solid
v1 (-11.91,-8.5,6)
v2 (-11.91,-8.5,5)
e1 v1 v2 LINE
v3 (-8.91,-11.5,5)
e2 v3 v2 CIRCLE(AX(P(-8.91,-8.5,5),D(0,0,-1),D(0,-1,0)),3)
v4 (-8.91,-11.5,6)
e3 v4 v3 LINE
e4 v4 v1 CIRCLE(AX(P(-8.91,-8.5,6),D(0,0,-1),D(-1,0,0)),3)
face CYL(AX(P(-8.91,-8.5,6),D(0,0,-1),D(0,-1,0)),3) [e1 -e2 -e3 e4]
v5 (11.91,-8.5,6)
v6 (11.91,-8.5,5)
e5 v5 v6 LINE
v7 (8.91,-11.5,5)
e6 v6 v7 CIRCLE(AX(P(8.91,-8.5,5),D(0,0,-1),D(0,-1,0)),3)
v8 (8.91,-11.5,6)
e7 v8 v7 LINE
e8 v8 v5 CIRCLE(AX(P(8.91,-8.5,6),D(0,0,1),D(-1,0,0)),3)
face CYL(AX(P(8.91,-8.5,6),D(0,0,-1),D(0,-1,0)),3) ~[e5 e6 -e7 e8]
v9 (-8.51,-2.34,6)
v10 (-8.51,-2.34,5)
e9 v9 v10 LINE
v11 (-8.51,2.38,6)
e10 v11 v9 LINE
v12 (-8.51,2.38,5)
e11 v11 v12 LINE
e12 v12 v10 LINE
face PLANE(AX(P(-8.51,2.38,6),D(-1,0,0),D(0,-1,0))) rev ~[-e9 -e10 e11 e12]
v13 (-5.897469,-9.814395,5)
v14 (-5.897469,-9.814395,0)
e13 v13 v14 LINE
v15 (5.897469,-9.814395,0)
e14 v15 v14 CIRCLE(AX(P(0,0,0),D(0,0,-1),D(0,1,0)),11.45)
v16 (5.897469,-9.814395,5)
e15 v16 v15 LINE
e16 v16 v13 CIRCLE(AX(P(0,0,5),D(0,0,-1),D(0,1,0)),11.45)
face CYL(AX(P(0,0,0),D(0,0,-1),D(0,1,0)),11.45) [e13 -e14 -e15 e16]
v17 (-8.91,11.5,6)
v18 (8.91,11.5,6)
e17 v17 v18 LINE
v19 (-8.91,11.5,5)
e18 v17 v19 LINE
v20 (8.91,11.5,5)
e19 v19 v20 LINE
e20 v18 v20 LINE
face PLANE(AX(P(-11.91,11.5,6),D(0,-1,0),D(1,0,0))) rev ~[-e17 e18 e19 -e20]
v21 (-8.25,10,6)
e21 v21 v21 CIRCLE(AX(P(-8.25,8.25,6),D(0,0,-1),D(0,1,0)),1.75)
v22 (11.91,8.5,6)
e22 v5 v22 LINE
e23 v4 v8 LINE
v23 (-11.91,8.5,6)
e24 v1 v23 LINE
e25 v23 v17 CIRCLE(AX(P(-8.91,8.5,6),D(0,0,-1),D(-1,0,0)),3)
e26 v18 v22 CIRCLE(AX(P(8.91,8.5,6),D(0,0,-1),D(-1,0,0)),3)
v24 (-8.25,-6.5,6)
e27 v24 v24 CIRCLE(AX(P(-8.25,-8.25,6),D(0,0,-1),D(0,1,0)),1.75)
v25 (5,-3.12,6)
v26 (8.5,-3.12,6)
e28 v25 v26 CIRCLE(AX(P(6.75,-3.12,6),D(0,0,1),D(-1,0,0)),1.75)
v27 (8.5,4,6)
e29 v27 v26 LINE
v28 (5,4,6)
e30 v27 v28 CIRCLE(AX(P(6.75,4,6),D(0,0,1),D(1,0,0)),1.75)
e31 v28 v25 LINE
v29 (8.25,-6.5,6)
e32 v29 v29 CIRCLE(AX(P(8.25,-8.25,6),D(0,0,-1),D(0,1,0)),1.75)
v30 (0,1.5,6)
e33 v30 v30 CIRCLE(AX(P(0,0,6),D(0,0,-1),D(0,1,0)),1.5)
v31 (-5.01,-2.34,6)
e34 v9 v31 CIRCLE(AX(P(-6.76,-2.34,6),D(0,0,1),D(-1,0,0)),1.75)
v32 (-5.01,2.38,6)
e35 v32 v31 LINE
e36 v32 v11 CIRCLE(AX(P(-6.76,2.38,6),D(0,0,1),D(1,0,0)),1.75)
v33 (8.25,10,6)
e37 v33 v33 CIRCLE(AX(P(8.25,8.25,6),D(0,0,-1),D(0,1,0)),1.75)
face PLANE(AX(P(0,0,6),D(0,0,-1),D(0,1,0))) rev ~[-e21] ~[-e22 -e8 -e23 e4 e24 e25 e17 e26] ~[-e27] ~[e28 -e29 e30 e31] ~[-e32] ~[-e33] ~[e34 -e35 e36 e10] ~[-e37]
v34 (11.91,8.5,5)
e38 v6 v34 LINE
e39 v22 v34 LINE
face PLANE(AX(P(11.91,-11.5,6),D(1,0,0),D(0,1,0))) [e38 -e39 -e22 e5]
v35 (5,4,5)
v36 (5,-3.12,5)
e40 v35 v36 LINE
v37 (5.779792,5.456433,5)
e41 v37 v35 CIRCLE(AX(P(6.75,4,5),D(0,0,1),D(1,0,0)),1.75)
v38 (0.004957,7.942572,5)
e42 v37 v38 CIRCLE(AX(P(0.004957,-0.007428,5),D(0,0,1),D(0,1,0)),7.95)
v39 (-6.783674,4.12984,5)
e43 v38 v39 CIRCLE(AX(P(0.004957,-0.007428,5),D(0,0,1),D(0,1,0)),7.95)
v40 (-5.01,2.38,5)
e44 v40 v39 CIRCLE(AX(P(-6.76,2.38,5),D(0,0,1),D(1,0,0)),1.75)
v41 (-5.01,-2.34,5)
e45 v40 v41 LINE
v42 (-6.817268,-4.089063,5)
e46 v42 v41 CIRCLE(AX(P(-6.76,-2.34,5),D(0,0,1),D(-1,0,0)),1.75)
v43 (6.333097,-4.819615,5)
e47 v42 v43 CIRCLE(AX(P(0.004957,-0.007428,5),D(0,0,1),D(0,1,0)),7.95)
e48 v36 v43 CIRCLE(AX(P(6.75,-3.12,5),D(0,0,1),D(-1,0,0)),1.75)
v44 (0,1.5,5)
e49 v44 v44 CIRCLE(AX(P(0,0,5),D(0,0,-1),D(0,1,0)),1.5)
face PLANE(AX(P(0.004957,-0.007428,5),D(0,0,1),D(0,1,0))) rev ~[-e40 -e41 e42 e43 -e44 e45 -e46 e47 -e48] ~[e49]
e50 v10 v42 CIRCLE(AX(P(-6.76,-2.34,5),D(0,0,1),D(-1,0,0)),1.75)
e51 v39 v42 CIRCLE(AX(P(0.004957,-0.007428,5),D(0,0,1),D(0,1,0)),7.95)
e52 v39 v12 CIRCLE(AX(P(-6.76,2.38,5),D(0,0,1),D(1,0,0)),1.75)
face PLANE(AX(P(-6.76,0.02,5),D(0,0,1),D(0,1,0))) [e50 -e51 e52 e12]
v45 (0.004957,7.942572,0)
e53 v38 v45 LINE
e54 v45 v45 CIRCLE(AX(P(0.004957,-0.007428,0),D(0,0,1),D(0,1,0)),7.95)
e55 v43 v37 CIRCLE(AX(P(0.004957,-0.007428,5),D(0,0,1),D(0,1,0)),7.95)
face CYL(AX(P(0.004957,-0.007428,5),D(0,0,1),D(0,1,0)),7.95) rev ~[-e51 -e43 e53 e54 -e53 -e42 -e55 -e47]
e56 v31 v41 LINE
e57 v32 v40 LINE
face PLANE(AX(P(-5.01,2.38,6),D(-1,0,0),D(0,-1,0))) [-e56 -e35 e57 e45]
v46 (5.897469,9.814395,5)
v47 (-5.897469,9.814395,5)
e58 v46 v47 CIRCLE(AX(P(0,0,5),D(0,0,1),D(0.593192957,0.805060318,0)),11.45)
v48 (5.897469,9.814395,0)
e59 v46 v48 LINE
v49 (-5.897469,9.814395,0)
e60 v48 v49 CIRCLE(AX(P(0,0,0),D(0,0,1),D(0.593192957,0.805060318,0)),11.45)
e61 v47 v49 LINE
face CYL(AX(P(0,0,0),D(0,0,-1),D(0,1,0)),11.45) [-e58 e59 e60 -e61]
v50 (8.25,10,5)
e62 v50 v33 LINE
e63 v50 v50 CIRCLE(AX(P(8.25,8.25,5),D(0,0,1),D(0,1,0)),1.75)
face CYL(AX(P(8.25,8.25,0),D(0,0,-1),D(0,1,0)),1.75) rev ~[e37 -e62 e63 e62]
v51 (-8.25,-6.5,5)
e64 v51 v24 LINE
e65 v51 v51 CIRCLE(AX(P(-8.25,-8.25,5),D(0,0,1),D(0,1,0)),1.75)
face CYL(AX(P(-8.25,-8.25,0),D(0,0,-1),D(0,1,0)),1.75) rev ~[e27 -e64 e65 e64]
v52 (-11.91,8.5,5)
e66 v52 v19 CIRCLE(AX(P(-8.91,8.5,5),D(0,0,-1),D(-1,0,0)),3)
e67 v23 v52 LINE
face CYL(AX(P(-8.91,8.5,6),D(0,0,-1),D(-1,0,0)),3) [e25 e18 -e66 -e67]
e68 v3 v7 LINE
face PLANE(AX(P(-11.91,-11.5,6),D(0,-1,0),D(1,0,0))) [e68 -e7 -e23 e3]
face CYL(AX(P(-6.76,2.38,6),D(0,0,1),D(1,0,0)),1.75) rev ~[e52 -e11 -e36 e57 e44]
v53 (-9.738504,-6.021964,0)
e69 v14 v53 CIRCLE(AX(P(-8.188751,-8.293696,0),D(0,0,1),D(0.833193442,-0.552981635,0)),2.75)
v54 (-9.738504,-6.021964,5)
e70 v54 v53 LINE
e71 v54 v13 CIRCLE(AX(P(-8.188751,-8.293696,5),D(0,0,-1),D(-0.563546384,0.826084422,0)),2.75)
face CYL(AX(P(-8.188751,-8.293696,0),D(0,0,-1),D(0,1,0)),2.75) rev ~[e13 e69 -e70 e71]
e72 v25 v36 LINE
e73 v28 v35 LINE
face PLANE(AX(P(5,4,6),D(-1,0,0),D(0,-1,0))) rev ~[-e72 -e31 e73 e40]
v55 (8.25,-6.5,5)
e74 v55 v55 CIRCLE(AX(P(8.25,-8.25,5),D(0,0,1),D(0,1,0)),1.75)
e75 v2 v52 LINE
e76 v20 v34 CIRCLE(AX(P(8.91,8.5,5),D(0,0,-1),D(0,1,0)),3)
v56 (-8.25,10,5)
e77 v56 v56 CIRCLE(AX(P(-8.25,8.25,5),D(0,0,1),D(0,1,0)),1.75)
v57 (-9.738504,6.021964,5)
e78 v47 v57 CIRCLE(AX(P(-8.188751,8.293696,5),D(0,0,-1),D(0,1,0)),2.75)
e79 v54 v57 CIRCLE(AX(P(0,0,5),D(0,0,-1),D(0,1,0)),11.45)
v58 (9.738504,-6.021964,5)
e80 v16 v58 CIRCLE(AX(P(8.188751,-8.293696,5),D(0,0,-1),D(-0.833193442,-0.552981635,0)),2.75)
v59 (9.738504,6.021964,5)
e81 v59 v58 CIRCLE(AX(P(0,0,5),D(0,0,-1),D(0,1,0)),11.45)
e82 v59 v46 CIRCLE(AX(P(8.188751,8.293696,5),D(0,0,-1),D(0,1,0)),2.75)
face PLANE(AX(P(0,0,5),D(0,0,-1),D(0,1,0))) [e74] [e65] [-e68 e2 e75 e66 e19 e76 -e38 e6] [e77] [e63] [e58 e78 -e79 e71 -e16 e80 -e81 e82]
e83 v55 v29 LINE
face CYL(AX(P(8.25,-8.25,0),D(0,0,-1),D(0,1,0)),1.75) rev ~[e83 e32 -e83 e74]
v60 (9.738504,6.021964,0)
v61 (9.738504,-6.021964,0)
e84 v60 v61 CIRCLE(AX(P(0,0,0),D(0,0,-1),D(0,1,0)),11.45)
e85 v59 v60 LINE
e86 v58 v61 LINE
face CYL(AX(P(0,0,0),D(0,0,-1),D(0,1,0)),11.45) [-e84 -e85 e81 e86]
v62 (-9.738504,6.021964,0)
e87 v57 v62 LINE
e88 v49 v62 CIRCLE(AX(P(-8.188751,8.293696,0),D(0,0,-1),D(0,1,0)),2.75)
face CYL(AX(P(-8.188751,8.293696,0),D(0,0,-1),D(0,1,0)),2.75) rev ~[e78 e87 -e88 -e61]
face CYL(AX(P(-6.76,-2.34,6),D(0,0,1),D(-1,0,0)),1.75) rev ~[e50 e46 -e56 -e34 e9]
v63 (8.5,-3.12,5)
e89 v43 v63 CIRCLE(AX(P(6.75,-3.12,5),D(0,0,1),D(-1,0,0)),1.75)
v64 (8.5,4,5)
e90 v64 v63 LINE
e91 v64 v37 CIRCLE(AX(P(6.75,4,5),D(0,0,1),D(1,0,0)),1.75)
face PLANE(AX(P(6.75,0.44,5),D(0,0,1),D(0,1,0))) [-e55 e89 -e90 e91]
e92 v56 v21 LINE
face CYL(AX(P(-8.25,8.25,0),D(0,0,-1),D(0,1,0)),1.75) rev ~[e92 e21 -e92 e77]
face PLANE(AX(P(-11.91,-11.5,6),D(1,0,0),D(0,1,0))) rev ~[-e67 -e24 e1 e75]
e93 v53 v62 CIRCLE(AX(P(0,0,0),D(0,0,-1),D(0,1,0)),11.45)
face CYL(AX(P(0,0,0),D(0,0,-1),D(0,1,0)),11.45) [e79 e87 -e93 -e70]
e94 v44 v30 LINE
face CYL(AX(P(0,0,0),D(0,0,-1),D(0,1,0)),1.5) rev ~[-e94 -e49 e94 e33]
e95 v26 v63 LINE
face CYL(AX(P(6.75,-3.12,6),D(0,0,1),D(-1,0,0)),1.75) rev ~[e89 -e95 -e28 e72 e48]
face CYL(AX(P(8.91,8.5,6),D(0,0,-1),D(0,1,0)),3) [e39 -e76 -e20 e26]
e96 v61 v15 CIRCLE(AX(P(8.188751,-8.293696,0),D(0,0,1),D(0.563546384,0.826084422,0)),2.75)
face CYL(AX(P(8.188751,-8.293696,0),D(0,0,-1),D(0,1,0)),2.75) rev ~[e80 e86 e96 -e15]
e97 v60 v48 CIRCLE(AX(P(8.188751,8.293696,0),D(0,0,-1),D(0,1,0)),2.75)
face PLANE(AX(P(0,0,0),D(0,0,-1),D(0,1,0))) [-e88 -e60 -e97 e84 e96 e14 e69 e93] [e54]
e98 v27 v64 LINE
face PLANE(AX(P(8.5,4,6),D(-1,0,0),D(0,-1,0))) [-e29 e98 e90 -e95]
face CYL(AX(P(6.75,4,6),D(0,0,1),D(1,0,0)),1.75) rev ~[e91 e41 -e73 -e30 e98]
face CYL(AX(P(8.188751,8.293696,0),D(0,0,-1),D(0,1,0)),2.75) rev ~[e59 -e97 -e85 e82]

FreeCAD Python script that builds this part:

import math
import FreeCAD as App
import Part
import Sketcher


def edges_at(feature, points):
    """Names of the edges that pass closest to the given points."""
    edges = feature.Shape.Edges
    near = lambda p: min(range(len(edges)), key=lambda i: edges[i].distToShape(Part.Vertex(*p))[0])
    return sorted({f"Edge{near(p) + 1}" for p in points})


def add_polygon(sketch, points):
    """Adds a closed chain of lines whose ends are joined by coincident constraints."""
    first, n = sketch.GeometryCount, len(points)
    for a, b in zip(points, points[1:] + points[:1]):
        sketch.addGeometry(Part.LineSegment(App.Vector(*a, 0), App.Vector(*b, 0)), False)
    for i in range(n):
        sketch.addConstraint(Sketcher.Constraint("Coincident", first + i, 2, first + (i + 1) % n, 1))

doc = App.newDocument("Part")
body = doc.addObject("PartDesign::Body", "Body")

# Sketch on XY plane
sketch1 = body.newObject("Sketcher::SketchObject", "Sketch")
sketch1.AttachmentSupport = (doc.getObject("XY_Plane"), [""])
sketch1.MapMode = "FlatFace"
add_polygon(sketch1, [(-12, 12), (-12, -12), (12, -12), (12, 12)])  # lines 0-3
sketch1.addConstraint(Sketcher.Constraint("Vertical", 0))
sketch1.addConstraint(Sketcher.Constraint("Horizontal", 1))
sketch1.addConstraint(Sketcher.Constraint("Vertical", 2))
sketch1.addConstraint(Sketcher.Constraint("Horizontal", 3))
sketch1.addConstraint(Sketcher.Constraint("Symmetric", 0, 2, 2, 2, -1, 1))
sketch1.addConstraint(Sketcher.Constraint("DistanceX", 1, 1, 1, 2, 23.0))
sketch1.addConstraint(Sketcher.Constraint("DistanceY", 0, 2, 0, 1, 23.82))
pad1 = body.newObject("PartDesign::Pad", "Pad")
pad1.Profile = sketch1
pad1.Length = 6
doc.recompute()

fillet = body.newObject("PartDesign::Fillet", "Fillet")
fillet.Base = (pad1, edges_at(pad1, [
    (11.5, -11.91, 3),
    (-11.5, -11.91, 3),
    (11.5, 11.91, 3),
    (-11.5, 11.91, 3),
]))
fillet.Radius = 3

# Sketch on XY plane
sketch2 = body.newObject("Sketcher::SketchObject", "Sketch001")
sketch2.AttachmentSupport = (doc.getObject("XY_Plane"), [""])
sketch2.MapMode = "FlatFace"
sketch2.addGeometry(Part.ArcOfCircle(Part.Circle(App.Vector(4, 6.8, 0), App.Vector(0, 0, 1), 1.8), math.radians(-90), math.radians(90)), False)
sketch2.addGeometry(Part.LineSegment(App.Vector(4, 5, 0), App.Vector(-3.1, 5, 0)), False)
sketch2.addGeometry(Part.ArcOfCircle(Part.Circle(App.Vector(-3.1, 6.8, 0), App.Vector(0, 0, 1), 1.8), math.radians(90), math.radians(270)), False)
sketch2.addGeometry(Part.LineSegment(App.Vector(-3.1, 8.5, 0), App.Vector(4, 8.5, 0)), False)
sketch2.addGeometry(Part.ArcOfCircle(Part.Circle(App.Vector(2.4, -6.8, 0), App.Vector(0, 0, 1), 1.8), math.radians(-90), math.radians(90)), False)
sketch2.addGeometry(Part.LineSegment(App.Vector(2.4, -8.5, 0), App.Vector(-2.3, -8.5, 0)), False)
sketch2.addGeometry(Part.ArcOfCircle(Part.Circle(App.Vector(-2.3, -6.8, 0), App.Vector(0, 0, 1), 1.8), math.radians(90), math.radians(270)), False)
sketch2.addGeometry(Part.LineSegment(App.Vector(-2.3, -5, 0), App.Vector(2.4, -5, 0)), False)
sketch2.addConstraint(Sketcher.Constraint("Tangent", 0, 1, 1, 1))
sketch2.addConstraint(Sketcher.Constraint("Tangent", 1, 2, 2, 2))
sketch2.addConstraint(Sketcher.Constraint("Tangent", 2, 1, 3, 1))
sketch2.addConstraint(Sketcher.Constraint("Tangent", 3, 2, 0, 2))
sketch2.addConstraint(Sketcher.Constraint("Tangent", 4, 1, 5, 1))
sketch2.addConstraint(Sketcher.Constraint("Tangent", 5, 2, 6, 2))
sketch2.addConstraint(Sketcher.Constraint("Tangent", 6, 1, 7, 1))
sketch2.addConstraint(Sketcher.Constraint("Tangent", 7, 2, 4, 2))
sketch2.addConstraint(Sketcher.Constraint("Horizontal", 1))
sketch2.addConstraint(Sketcher.Constraint("Horizontal", 3))
sketch2.addConstraint(Sketcher.Constraint("Horizontal", 5))
sketch2.addConstraint(Sketcher.Constraint("Horizontal", 7))
sketch2.addConstraint(Sketcher.Constraint("Equal", 2, 4))
sketch2.addConstraint(Sketcher.Constraint("Radius", 0, 1.75))
sketch2.addConstraint(Sketcher.Constraint("DistanceX", -1, 1, 0, 3, 4.0))
sketch2.addConstraint(Sketcher.Constraint("DistanceY", -1, 1, 0, 1, 5.0))
sketch2.addConstraint(Sketcher.Constraint("DistanceX", 1, 2, 1, 1, 7.12))
sketch2.addConstraint(Sketcher.Constraint("DistanceX", 5, 2, 5, 1, 4.72))
sketch2.addConstraint(Sketcher.Constraint("DistanceX", 2, 3, 4, 3, 5.5))
sketch2.addConstraint(Sketcher.Constraint("DistanceY", 4, 3, -1, 1, 6.76))
pocket1 = body.newObject("PartDesign::Pocket", "Pocket")
pocket1.Profile = sketch2
pocket1.Length = 1
pocket1.Reversed = True

# Sketch on XY plane
sketch3 = body.newObject("Sketcher::SketchObject", "Sketch002")
sketch3.AttachmentSupport = (doc.getObject("XY_Plane"), [""])
sketch3.MapMode = "FlatFace"
sketch3.AttachmentOffset = App.Placement(App.Vector(0, 0, 6), App.Rotation())
add_polygon(sketch3, [(-20, 20), (-20, -20), (20, -20), (20, 20)])  # lines 0-3
sketch3.addGeometry(Part.Circle(App.Vector(0, 0, 0), App.Vector(0, 0, 1), 11), False)  # 4
sketch3.addConstraint(Sketcher.Constraint("Vertical", 0))
sketch3.addConstraint(Sketcher.Constraint("Horizontal", 1))
sketch3.addConstraint(Sketcher.Constraint("Vertical", 2))
sketch3.addConstraint(Sketcher.Constraint("Horizontal", 3))
sketch3.addConstraint(Sketcher.Constraint("Coincident", 4, 3, -1, 1))
sketch3.addConstraint(Sketcher.Constraint("Symmetric", 0, 2, 2, 2, -1, 1))
sketch3.addConstraint(Sketcher.Constraint("Equal", 3, 0))
sketch3.addConstraint(Sketcher.Constraint("Diameter", 4, 22.9))
sketch3.addConstraint(Sketcher.Constraint("DistanceX", 1, 1, 1, 2, 40.0))
pocket2 = body.newObject("PartDesign::Pocket", "Pocket001")
pocket2.Profile = sketch3
pocket2.Length = 5

# Sketch on XY plane
sketch4 = body.newObject("Sketcher::SketchObject", "Sketch003")
sketch4.AttachmentSupport = (doc.getObject("XY_Plane"), [""])
sketch4.MapMode = "FlatFace"
sketch4.AttachmentOffset = App.Placement(App.Vector(0, 0, 1), App.Rotation())
sketch4.addGeometry(Part.Circle(App.Vector(0, 0, 0), App.Vector(0, 0, 1), 8), False)
sketch4.addConstraint(Sketcher.Constraint("Diameter", 0, 15.9))
sketch4.addConstraint(Sketcher.Constraint("DistanceX", 0, 3, -1, 1, 0.007428))
sketch4.addConstraint(Sketcher.Constraint("DistanceY", -1, 1, 0, 3, 0.004957))
pocket3 = body.newObject("PartDesign::Pocket", "Pocket002")
pocket3.Profile = sketch4
pocket3.Length = 5
pocket3.Reversed = True

# Sketch on XY plane
sketch5 = body.newObject("Sketcher::SketchObject", "Sketch004")
sketch5.AttachmentSupport = (doc.getObject("XY_Plane"), [""])
sketch5.MapMode = "FlatFace"
sketch5.AttachmentOffset = App.Placement(App.Vector(0, 0, 6), App.Rotation())
sketch5.addGeometry(Part.Circle(App.Vector(-8.2, 8.2, 0), App.Vector(0, 0, 1), 1.8), False)
sketch5.addGeometry(Part.Circle(App.Vector(8.2, 8.2, 0), App.Vector(0, 0, 1), 1.8), False)
sketch5.addGeometry(Part.Circle(App.Vector(8.2, -8.2, 0), App.Vector(0, 0, 1), 1.8), False)
sketch5.addGeometry(Part.Circle(App.Vector(-8.2, -8.2, 0), App.Vector(0, 0, 1), 1.8), False)
sketch5.addConstraint(Sketcher.Constraint("Equal", 0, 1))
sketch5.addConstraint(Sketcher.Constraint("Equal", 1, 2))
sketch5.addConstraint(Sketcher.Constraint("Equal", 2, 3))
sketch5.addConstraint(Sketcher.Constraint("Symmetric", 0, 3, 2, 3, -1, 1))
sketch5.addConstraint(Sketcher.Constraint("Symmetric", 1, 3, 3, 3, -1, 1))
sketch5.addConstraint(Sketcher.Constraint("Symmetric", 0, 3, 1, 3, -2))
sketch5.addConstraint(Sketcher.Constraint("Diameter", 0, 3.5))
sketch5.addConstraint(Sketcher.Constraint("DistanceX", 0, 3, 1, 3, 16.5))
sketch5.addConstraint(Sketcher.Constraint("DistanceY", 2, 3, 1, 3, 16.5))
pocket4 = body.newObject("PartDesign::Pocket", "Pocket003")
pocket4.Profile = sketch5
pocket4.Type = "ThroughAll"

# Sketch on XY plane
sketch6 = body.newObject("Sketcher::SketchObject", "Sketch005")
sketch6.AttachmentSupport = (doc.getObject("XY_Plane"), [""])
sketch6.MapMode = "FlatFace"
sketch6.AttachmentOffset = App.Placement(App.Vector(0, 0, 6), App.Rotation())
sketch6.addGeometry(Part.Circle(App.Vector(-8.3, 8.2, 0), App.Vector(0, 0, 1), 2.8), False)
sketch6.addGeometry(Part.Circle(App.Vector(8.3, 8.2, 0), App.Vector(0, 0, 1), 2.8), False)
sketch6.addGeometry(Part.Circle(App.Vector(8.3, -8.2, 0), App.Vector(0, 0, 1), 2.8), False)
sketch6.addGeometry(Part.Circle(App.Vector(-8.3, -8.2, 0), App.Vector(0, 0, 1), 2.8), False)
sketch6.addConstraint(Sketcher.Constraint("Equal", 0, 1))
sketch6.addConstraint(Sketcher.Constraint("Equal", 1, 2))
sketch6.addConstraint(Sketcher.Constraint("Equal", 2, 3))
sketch6.addConstraint(Sketcher.Constraint("Symmetric", 0, 3, 2, 3, -1, 1))
sketch6.addConstraint(Sketcher.Constraint("Symmetric", 1, 3, 3, 3, -1, 1))
sketch6.addConstraint(Sketcher.Constraint("Symmetric", 0, 3, 1, 3, -2))
sketch6.addConstraint(Sketcher.Constraint("Diameter", 0, 5.5))
sketch6.addConstraint(Sketcher.Constraint("DistanceY", 2, 3, 1, 3, 16.377502))
sketch6.addConstraint(Sketcher.Constraint("DistanceX", 0, 3, -1, 1, 8.293696))
pocket5 = body.newObject("PartDesign::Pocket", "Pocket004")
pocket5.Profile = sketch6
pocket5.Length = 5

# Sketch on XY plane
sketch7 = body.newObject("Sketcher::SketchObject", "Sketch006")
sketch7.AttachmentSupport = (doc.getObject("XY_Plane"), [""])
sketch7.MapMode = "FlatFace"
sketch7.AttachmentOffset = App.Placement(App.Vector(0, 0, 6), App.Rotation())
sketch7.addGeometry(Part.Circle(App.Vector(0, 0, 0), App.Vector(0, 0, 1), 1.5), False)
sketch7.addConstraint(Sketcher.Constraint("Coincident", 0, 3, -1, 1))
sketch7.addConstraint(Sketcher.Constraint("Diameter", 0, 3.0))
pocket6 = body.newObject("PartDesign::Pocket", "Pocket005")
pocket6.Profile = sketch7
pocket6.Length = 25
body2 = doc.addObject("PartDesign::Body", "Body001")
doc.recompute()

body.Placement = App.Placement(App.Vector(0, 0, 0), App.Rotation(App.Vector(1, 0, 0), 180))
boolean = body2.newObject("PartDesign::Boolean", "Boolean")
boolean.Type = "Fuse"
boolean.addObjects([body])
body3 = doc.addObject("PartDesign::Body", "Body002")
doc.recompute()

body2.Placement = App.Placement(App.Vector(0, 0, 6), App.Rotation(App.Vector(0, 0, 1), 90))
boolean2 = body3.newObject("PartDesign::Boolean", "Boolean001")
boolean2.Type = "Fuse"
boolean2.addObjects([body2])

doc.recompute()
